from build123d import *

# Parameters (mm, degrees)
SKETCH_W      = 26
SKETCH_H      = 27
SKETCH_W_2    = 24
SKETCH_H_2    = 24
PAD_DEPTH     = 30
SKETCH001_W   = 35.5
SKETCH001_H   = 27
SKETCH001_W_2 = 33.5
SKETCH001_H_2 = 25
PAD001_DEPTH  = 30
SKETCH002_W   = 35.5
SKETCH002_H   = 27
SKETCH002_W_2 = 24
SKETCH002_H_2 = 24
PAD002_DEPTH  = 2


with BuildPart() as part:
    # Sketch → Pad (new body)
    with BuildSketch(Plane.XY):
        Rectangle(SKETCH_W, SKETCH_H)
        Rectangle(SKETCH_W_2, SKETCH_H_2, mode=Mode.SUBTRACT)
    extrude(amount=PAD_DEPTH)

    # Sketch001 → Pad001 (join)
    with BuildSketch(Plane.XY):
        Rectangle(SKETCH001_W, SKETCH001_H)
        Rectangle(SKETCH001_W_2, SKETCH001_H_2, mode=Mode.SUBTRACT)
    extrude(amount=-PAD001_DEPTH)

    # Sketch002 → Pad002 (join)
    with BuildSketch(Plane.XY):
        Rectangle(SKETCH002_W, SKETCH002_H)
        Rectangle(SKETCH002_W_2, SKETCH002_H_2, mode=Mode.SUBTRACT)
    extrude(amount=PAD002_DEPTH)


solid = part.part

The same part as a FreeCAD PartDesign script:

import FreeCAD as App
import Part
import Sketcher
Q = App.Units.Quantity

doc = App.newDocument("Part")
body = doc.addObject("PartDesign::Body", "Body")

# Sketch on XY plane
sketch1 = body.newObject("Sketcher::SketchObject", "Sketch")
sketch1.AttachmentSupport = (doc.getObject("XY_Plane"), [""])
sketch1.MapMode = "FlatFace"
sketch1.addGeometry([
    Part.LineSegment(App.Vector(-13, 14, 0), App.Vector(-13, -14, 0)),  # 0
    Part.LineSegment(App.Vector(-13, -14, 0), App.Vector(13, -14, 0)),  # 1
    Part.LineSegment(App.Vector(13, -14, 0), App.Vector(13, 14, 0)),  # 2
    Part.LineSegment(App.Vector(13, 14, 0), App.Vector(-13, 14, 0)),  # 3
    Part.LineSegment(App.Vector(12, -12, 0), App.Vector(-12, -12, 0)),  # 4
    Part.LineSegment(App.Vector(-12, -12, 0), App.Vector(-12, 12, 0)),  # 5
    Part.LineSegment(App.Vector(-12, 12, 0), App.Vector(12, 12, 0)),  # 6
    Part.LineSegment(App.Vector(12, 12, 0), App.Vector(12, -12, 0)),  # 7
], False)
sketch1.addConstraint([
    Sketcher.Constraint("Coincident", 0, 2, 1, 1),
    Sketcher.Constraint("Coincident", 1, 2, 2, 1),
    Sketcher.Constraint("Coincident", 2, 2, 3, 1),
    Sketcher.Constraint("Coincident", 3, 2, 0, 1),
    Sketcher.Constraint("Coincident", 4, 2, 5, 1),
    Sketcher.Constraint("Coincident", 5, 2, 6, 1),
    Sketcher.Constraint("Coincident", 6, 2, 7, 1),
    Sketcher.Constraint("Coincident", 7, 2, 4, 1),
    Sketcher.Constraint("Vertical", 0),
    Sketcher.Constraint("Horizontal", 1),
    Sketcher.Constraint("Vertical", 2),
    Sketcher.Constraint("Horizontal", 3),
    Sketcher.Constraint("Horizontal", 4),
    Sketcher.Constraint("Vertical", 5),
    Sketcher.Constraint("Horizontal", 6),
    Sketcher.Constraint("Vertical", 7),
    Sketcher.Constraint("Symmetric", 0, 2, 2, 2, -1, 1),
    Sketcher.Constraint("Symmetric", 4, 2, 6, 2, -1, 1),
    Sketcher.Constraint("Equal", 6, 5),
    Sketcher.Constraint("DistanceX", 1, 1, 1, 2, Q("26 mm")),
    Sketcher.Constraint("DistanceX", 4, 2, 4, 1, Q("24 mm")),
    Sketcher.Constraint("DistanceY", 0, 2, 0, 1, Q("27 mm")),
])
pad1 = body.newObject("PartDesign::Pad", "Pad")
pad1.Profile = sketch1
pad1.Length = 30

# Sketch on XY plane
sketch2 = body.newObject("Sketcher::SketchObject", "Sketch001")
sketch2.AttachmentSupport = (doc.getObject("XY_Plane"), [""])
sketch2.MapMode = "FlatFace"
sketch2.addGeometry([
    Part.LineSegment(App.Vector(-18, 14, 0), App.Vector(-18, -14, 0)),  # 0
    Part.LineSegment(App.Vector(-18, -14, 0), App.Vector(18, -14, 0)),  # 1
    Part.LineSegment(App.Vector(18, -14, 0), App.Vector(18, 14, 0)),  # 2
    Part.LineSegment(App.Vector(18, 14, 0), App.Vector(-18, 14, 0)),  # 3
    Part.LineSegment(App.Vector(17, -12, 0), App.Vector(-17, -12, 0)),  # 4
    Part.LineSegment(App.Vector(-17, -12, 0), App.Vector(-17, 12, 0)),  # 5
    Part.LineSegment(App.Vector(-17, 12, 0), App.Vector(17, 12, 0)),  # 6
    Part.LineSegment(App.Vector(17, 12, 0), App.Vector(17, -12, 0)),  # 7
], False)
sketch2.addConstraint([
    Sketcher.Constraint("Coincident", 0, 2, 1, 1),
    Sketcher.Constraint("Coincident", 1, 2, 2, 1),
    Sketcher.Constraint("Coincident", 2, 2, 3, 1),
    Sketcher.Constraint("Coincident", 3, 2, 0, 1),
    Sketcher.Constraint("Coincident", 4, 2, 5, 1),
    Sketcher.Constraint("Coincident", 5, 2, 6, 1),
    Sketcher.Constraint("Coincident", 6, 2, 7, 1),
    Sketcher.Constraint("Coincident", 7, 2, 4, 1),
    Sketcher.Constraint("Vertical", 0),
    Sketcher.Constraint("Horizontal", 1),
    Sketcher.Constraint("Vertical", 2),
    Sketcher.Constraint("Horizontal", 3),
    Sketcher.Constraint("Horizontal", 4),
    Sketcher.Constraint("Vertical", 5),
    Sketcher.Constraint("Horizontal", 6),
    Sketcher.Constraint("Vertical", 7),
    Sketcher.Constraint("Symmetric", 0, 2, 2, 2, -1, 1),
    Sketcher.Constraint("Symmetric", 4, 2, 6, 2, -1, 1),
    Sketcher.Constraint("DistanceY", 0, 2, 0, 1, Q("27 mm")),
    Sketcher.Constraint("DistanceY", 5, 1, 5, 2, Q("25 mm")),
    Sketcher.Constraint("DistanceX", 1, 1, 1, 2, Q("35.5 mm")),
    Sketcher.Constraint("DistanceX", 4, 2, 4, 1, Q("33.5 mm")),
])
pad2 = body.newObject("PartDesign::Pad", "Pad001")
pad2.Profile = sketch2
pad2.Length = 30
pad2.Reversed = True

# Sketch on XY plane
sketch3 = body.newObject("Sketcher::SketchObject", "Sketch002")
sketch3.AttachmentSupport = (doc.getObject("XY_Plane"), [""])
sketch3.MapMode = "FlatFace"
sketch3.addGeometry([
    Part.LineSegment(App.Vector(-18, 14, 0), App.Vector(-18, -14, 0)),  # 0
    Part.LineSegment(App.Vector(-18, -14, 0), App.Vector(18, -14, 0)),  # 1
    Part.LineSegment(App.Vector(18, -14, 0), App.Vector(18, 14, 0)),  # 2
    Part.LineSegment(App.Vector(18, 14, 0), App.Vector(-18, 14, 0)),  # 3
    Part.LineSegment(App.Vector(12, -12, 0), App.Vector(-12, -12, 0)),  # 4
    Part.LineSegment(App.Vector(-12, -12, 0), App.Vector(-12, 12, 0)),  # 5
    Part.LineSegment(App.Vector(-12, 12, 0), App.Vector(12, 12, 0)),  # 6
    Part.LineSegment(App.Vector(12, 12, 0), App.Vector(12, -12, 0)),  # 7
], False)
sketch3.addConstraint([
    Sketcher.Constraint("Coincident", 0, 2, 1, 1),
    Sketcher.Constraint("Coincident", 1, 2, 2, 1),
    Sketcher.Constraint("Coincident", 2, 2, 3, 1),
    Sketcher.Constraint("Coincident", 3, 2, 0, 1),
    Sketcher.Constraint("Coincident", 4, 2, 5, 1),
    Sketcher.Constraint("Coincident", 5, 2, 6, 1),
    Sketcher.Constraint("Coincident", 6, 2, 7, 1),
    Sketcher.Constraint("Coincident", 7, 2, 4, 1),
    Sketcher.Constraint("Vertical", 0),
    Sketcher.Constraint("Horizontal", 1),
    Sketcher.Constraint("Vertical", 2),
    Sketcher.Constraint("Horizontal", 3),
    Sketcher.Constraint("Horizontal", 4),
    Sketcher.Constraint("Vertical", 5),
    Sketcher.Constraint("Horizontal", 6),
    Sketcher.Constraint("Vertical", 7),
    Sketcher.Constraint("Symmetric", 0, 2, 2, 2, -1, 1),
    Sketcher.Constraint("Symmetric", 4, 2, 6, 2, -1, 1),
    Sketcher.Constraint("Equal", 6, 5),
    Sketcher.Constraint("DistanceX", 4, 2, 4, 1, Q("24 mm")),
    Sketcher.Constraint("DistanceY", 0, 2, 0, 1, Q("27 mm")),
    Sketcher.Constraint("DistanceX", 1, 1, 1, 2, Q("35.5 mm")),
])
pad3 = body.newObject("PartDesign::Pad", "Pad002")
pad3.Profile = sketch3
pad3.Length = 2

doc.recompute()
